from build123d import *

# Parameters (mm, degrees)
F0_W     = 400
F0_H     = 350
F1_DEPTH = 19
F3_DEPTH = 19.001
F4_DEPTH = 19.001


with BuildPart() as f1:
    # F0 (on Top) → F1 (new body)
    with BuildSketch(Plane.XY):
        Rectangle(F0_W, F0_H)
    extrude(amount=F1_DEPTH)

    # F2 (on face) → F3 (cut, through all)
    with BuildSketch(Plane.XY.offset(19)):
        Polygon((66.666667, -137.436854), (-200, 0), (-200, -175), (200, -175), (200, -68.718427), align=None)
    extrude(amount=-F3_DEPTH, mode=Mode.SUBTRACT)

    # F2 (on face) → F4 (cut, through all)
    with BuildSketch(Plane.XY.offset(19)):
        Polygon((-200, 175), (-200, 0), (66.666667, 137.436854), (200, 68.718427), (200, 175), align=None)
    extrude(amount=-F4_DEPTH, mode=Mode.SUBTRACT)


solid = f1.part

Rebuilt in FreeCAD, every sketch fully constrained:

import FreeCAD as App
import Part
import Sketcher

doc = App.newDocument("Part")
params = doc.addObject("Spreadsheet::Sheet", "Params")
for row, (alias, value) in enumerate([
    ("sketch1_width", "400 mm"),
    ("sketch1_height", "350 mm"),
    ("pad1_length", "19 mm"),
    ("sketch2_width", "400 mm"),
    ("sketch2_height", "175 mm"),
    ("sketch2_length", "300 mm"),
    ("sketch2_length2", "150 mm"),
    ("sketch3_width", "400 mm"),
    ("sketch3_height", "175 mm"),
    ("sketch3_length", "300 mm"),
    ("sketch3_length2", "150 mm"),
], start=1):
    params.set(f"A{row}", alias)
    params.set(f"B{row}", "=" + value)
    params.setAlias(f"B{row}", alias)

body = doc.addObject("PartDesign::Body", "Body")

# Sketch on XY plane
sketch1 = body.newObject("Sketcher::SketchObject", "Sketch")
sketch1.AttachmentSupport = (doc.getObject("XY_Plane"), [""])
sketch1.MapMode = "FlatFace"
sketch1.addGeometry(Part.LineSegment(App.Vector(-200, 175, 0), App.Vector(-200, -175, 0)), False)
sketch1.addGeometry(Part.LineSegment(App.Vector(-200, -175, 0), App.Vector(200, -175, 0)), False)
sketch1.addGeometry(Part.LineSegment(App.Vector(200, -175, 0), App.Vector(200, 175, 0)), False)
sketch1.addGeometry(Part.LineSegment(App.Vector(200, 175, 0), App.Vector(-200, 175, 0)), False)
sketch1.addConstraint(Sketcher.Constraint("Coincident", 0, 2, 1, 1))
sketch1.addConstraint(Sketcher.Constraint("Coincident", 1, 2, 2, 1))
sketch1.addConstraint(Sketcher.Constraint("Coincident", 2, 2, 3, 1))
sketch1.addConstraint(Sketcher.Constraint("Coincident", 3, 2, 0, 1))
sketch1.addConstraint(Sketcher.Constraint("Vertical", 0))
sketch1.addConstraint(Sketcher.Constraint("Horizontal", 1))
sketch1.addConstraint(Sketcher.Constraint("Vertical", 2))
sketch1.addConstraint(Sketcher.Constraint("Horizontal", 3))
sketch1.addConstraint(Sketcher.Constraint("Symmetric", 0, 2, 2, 2, -1, 1))
sketch1.addConstraint(Sketcher.Constraint("DistanceX", 1, 1, 1, 2, 400.0))
sketch1.addConstraint(Sketcher.Constraint("DistanceY", 0, 2, 0, 1, 350.0))
sketch1.setExpression("Constraints[9]", "Params.sketch1_width")
sketch1.setExpression("Constraints[10]", "Params.sketch1_height")
pad1 = body.newObject("PartDesign::Pad", "Pad")
pad1.Profile = sketch1
pad1.setExpression("Length", "Params.pad1_length")

# Sketch on XY plane
sketch2 = body.newObject("Sketcher::SketchObject", "Sketch001")
sketch2.AttachmentSupport = (doc.getObject("XY_Plane"), [""])
sketch2.MapMode = "FlatFace"
sketch2.AttachmentOffset = App.Placement(App.Vector(0, 0, 19), App.Rotation())
sketch2.addGeometry(Part.LineSegment(App.Vector(67, -137, 0), App.Vector(-200, 0, 0)), False)
sketch2.addGeometry(Part.LineSegment(App.Vector(-200, 0, 0), App.Vector(-200, -175, 0)), False)
sketch2.addGeometry(Part.LineSegment(App.Vector(-200, -175, 0), App.Vector(200, -175, 0)), False)
sketch2.addGeometry(Part.LineSegment(App.Vector(200, -175, 0), App.Vector(200, -69, 0)), False)
sketch2.addGeometry(Part.LineSegment(App.Vector(200, -69, 0), App.Vector(67, -137, 0)), False)
sketch2.addConstraint(Sketcher.Constraint("Coincident", 0, 2, 1, 1))
sketch2.addConstraint(Sketcher.Constraint("Coincident", 1, 2, 2, 1))
sketch2.addConstraint(Sketcher.Constraint("Coincident", 2, 2, 3, 1))
sketch2.addConstraint(Sketcher.Constraint("Coincident", 3, 2, 4, 1))
sketch2.addConstraint(Sketcher.Constraint("Coincident", 4, 2, 0, 1))
sketch2.addConstraint(Sketcher.Constraint("Vertical", 1))
sketch2.addConstraint(Sketcher.Constraint("Horizontal", 2))
sketch2.addConstraint(Sketcher.Constraint("Vertical", 3))
sketch2.addConstraint(Sketcher.Constraint("PointOnObject", 0, 2, -1))
sketch2.addConstraint(Sketcher.Constraint("DistanceX", 2, 1, 2, 2, 400.0))
sketch2.addConstraint(Sketcher.Constraint("DistanceY", 1, 2, 1, 1, 175.0))
sketch2.addConstraint(Sketcher.Constraint("Distance", 0, 300.0))
sketch2.addConstraint(Sketcher.Constraint("Distance", 4, 150.0))
sketch2.addConstraint(Sketcher.Constraint("DistanceX", 0, 2, -1, 1, 200.0))
sketch2.addConstraint(Sketcher.Constraint("DistanceY", 3, 1, 3, 2, 106.281573))
sketch2.setExpression("Constraints[9]", "Params.sketch2_width")
sketch2.setExpression("Constraints[10]", "Params.sketch2_height")
sketch2.setExpression("Constraints[11]", "Params.sketch2_length")
sketch2.setExpression("Constraints[12]", "Params.sketch2_length2")
pocket1 = body.newObject("PartDesign::Pocket", "Pocket")
pocket1.Profile = sketch2
pocket1.Type = "ThroughAll"

# Sketch on XY plane
sketch3 = body.newObject("Sketcher::SketchObject", "Sketch002")
sketch3.AttachmentSupport = (doc.getObject("XY_Plane"), [""])
sketch3.MapMode = "FlatFace"
sketch3.AttachmentOffset = App.Placement(App.Vector(0, 0, 19), App.Rotation())
sketch3.addGeometry(Part.LineSegment(App.Vector(-200, 175, 0), App.Vector(-200, 0, 0)), False)
sketch3.addGeometry(Part.LineSegment(App.Vector(-200, 0, 0), App.Vector(67, 137, 0)), False)
sketch3.addGeometry(Part.LineSegment(App.Vector(67, 137, 0), App.Vector(200, 69, 0)), False)
sketch3.addGeometry(Part.LineSegment(App.Vector(200, 69, 0), App.Vector(200, 175, 0)), False)
sketch3.addGeometry(Part.LineSegment(App.Vector(200, 175, 0), App.Vector(-200, 175, 0)), False)
sketch3.addConstraint(Sketcher.Constraint("Coincident", 0, 2, 1, 1))
sketch3.addConstraint(Sketcher.Constraint("Coincident", 1, 2, 2, 1))
sketch3.addConstraint(Sketcher.Constraint("Coincident", 2, 2, 3, 1))
sketch3.addConstraint(Sketcher.Constraint("Coincident", 3, 2, 4, 1))
sketch3.addConstraint(Sketcher.Constraint("Coincident", 4, 2, 0, 1))
sketch3.addConstraint(Sketcher.Constraint("Vertical", 0))
sketch3.addConstraint(Sketcher.Constraint("Vertical", 3))
sketch3.addConstraint(Sketcher.Constraint("Horizontal", 4))
sketch3.addConstraint(Sketcher.Constraint("PointOnObject", 0, 2, -1))
sketch3.addConstraint(Sketcher.Constraint("DistanceX", 4, 2, 4, 1, 400.0))
sketch3.addConstraint(Sketcher.Constraint("DistanceY", 0, 2, 0, 1, 175.0))
sketch3.addConstraint(Sketcher.Constraint("Distance", 1, 300.0))
sketch3.addConstraint(Sketcher.Constraint("Distance", 2, 150.0))
sketch3.addConstraint(Sketcher.Constraint("DistanceX", 0, 2, -1, 1, 200.0))
sketch3.addConstraint(Sketcher.Constraint("DistanceY", 3, 1, 3, 2, 106.281573))
sketch3.setExpression("Constraints[9]", "Params.sketch3_width")
sketch3.setExpression("Constraints[10]", "Params.sketch3_height")
sketch3.setExpression("Constraints[11]", "Params.sketch3_length")
sketch3.setExpression("Constraints[12]", "Params.sketch3_length2")
pocket2 = body.newObject("PartDesign::Pocket", "Pocket001")
pocket2.Profile = sketch3
pocket2.Type = "ThroughAll"

doc.recompute()
